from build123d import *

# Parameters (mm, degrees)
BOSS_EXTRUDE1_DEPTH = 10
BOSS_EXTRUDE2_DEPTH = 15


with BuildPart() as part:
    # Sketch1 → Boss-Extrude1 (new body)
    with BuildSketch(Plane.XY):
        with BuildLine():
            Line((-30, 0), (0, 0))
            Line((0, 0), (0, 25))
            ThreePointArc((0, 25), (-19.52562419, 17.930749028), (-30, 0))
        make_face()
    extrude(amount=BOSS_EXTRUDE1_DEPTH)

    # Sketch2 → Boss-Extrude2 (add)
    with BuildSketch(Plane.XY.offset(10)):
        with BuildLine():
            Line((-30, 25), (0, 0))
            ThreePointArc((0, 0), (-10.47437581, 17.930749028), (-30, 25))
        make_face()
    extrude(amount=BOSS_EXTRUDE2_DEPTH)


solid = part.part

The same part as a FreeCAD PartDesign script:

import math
import FreeCAD as App
import Part
import Sketcher

V = App.Vector
Q = App.Units.Quantity

doc = App.newDocument("Part")
body = doc.addObject("PartDesign::Body", "Body")

# Sketch on XY plane
sketch1 = body.newObject("Sketcher::SketchObject", "Sketch")
sketch1.AttachmentSupport = (doc.getObject("XY_Plane"), [""])
sketch1.MapMode = "FlatFace"
sketch1.addGeometry([
    Part.LineSegment(V(-30, 0, 0), V(0, 0, 0)),
    Part.LineSegment(V(0, 0, 0), V(0, 25, 0)),
    Part.ArcOfCircle(Part.Circle(V(0, -5, 0), V(0, 0, 1), 30), math.radians(90), math.radians(170)),
], False)
sketch1.addConstraint([
    Sketcher.Constraint("Coincident", 0, 2, 1, 1),
    Sketcher.Constraint("Coincident", 1, 2, 2, 1),
    Sketcher.Constraint("Coincident", 2, 2, 0, 1),
    Sketcher.Constraint("Horizontal", 0),
    Sketcher.Constraint("Vertical", 1),
    Sketcher.Constraint("Coincident", 0, 2, -1, 1),
    Sketcher.Constraint("PointOnObject", 2, 3, -2),
    Sketcher.Constraint("Radius", 2, Q("30.5 mm")),
    Sketcher.Constraint("DistanceX", 0, 1, 0, 2, Q("30 mm")),
])
pad1 = body.newObject("PartDesign::Pad", "Pad")
pad1.Profile = sketch1
pad1.Length = 10

# Sketch on XY plane
sketch2 = body.newObject("Sketcher::SketchObject", "Sketch001")
sketch2.AttachmentSupport = (doc.getObject("XY_Plane"), [""])
sketch2.MapMode = "FlatFace"
sketch2.AttachmentOffset = App.Placement(V(0, 0, 10), App.Rotation())
sketch2.addGeometry([
    Part.LineSegment(V(-30, 25, 0), V(0, 0, 0)),
    Part.ArcOfCircle(Part.Circle(V(-30, -5, 0), V(0, 0, 1), 30), math.radians(10), math.radians(90)),
], False)
sketch2.addConstraint([
    Sketcher.Constraint("Coincident", 0, 1, 1, 2),
    Sketcher.Constraint("Coincident", 1, 1, 0, 2),
    Sketcher.Constraint("Coincident", 1, 1, -1, 1),
    Sketcher.Constraint("Vertical", 1, 3, 0, 1),
    Sketcher.Constraint("Radius", 1, Q("30.5 mm")),
    Sketcher.Constraint("DistanceX", 1, 3, -1, 1, Q("30 mm")),
])
pad2 = body.newObject("PartDesign::Pad", "Pad001")
pad2.Profile = sketch2
pad2.Length = 15

doc.recompute()
